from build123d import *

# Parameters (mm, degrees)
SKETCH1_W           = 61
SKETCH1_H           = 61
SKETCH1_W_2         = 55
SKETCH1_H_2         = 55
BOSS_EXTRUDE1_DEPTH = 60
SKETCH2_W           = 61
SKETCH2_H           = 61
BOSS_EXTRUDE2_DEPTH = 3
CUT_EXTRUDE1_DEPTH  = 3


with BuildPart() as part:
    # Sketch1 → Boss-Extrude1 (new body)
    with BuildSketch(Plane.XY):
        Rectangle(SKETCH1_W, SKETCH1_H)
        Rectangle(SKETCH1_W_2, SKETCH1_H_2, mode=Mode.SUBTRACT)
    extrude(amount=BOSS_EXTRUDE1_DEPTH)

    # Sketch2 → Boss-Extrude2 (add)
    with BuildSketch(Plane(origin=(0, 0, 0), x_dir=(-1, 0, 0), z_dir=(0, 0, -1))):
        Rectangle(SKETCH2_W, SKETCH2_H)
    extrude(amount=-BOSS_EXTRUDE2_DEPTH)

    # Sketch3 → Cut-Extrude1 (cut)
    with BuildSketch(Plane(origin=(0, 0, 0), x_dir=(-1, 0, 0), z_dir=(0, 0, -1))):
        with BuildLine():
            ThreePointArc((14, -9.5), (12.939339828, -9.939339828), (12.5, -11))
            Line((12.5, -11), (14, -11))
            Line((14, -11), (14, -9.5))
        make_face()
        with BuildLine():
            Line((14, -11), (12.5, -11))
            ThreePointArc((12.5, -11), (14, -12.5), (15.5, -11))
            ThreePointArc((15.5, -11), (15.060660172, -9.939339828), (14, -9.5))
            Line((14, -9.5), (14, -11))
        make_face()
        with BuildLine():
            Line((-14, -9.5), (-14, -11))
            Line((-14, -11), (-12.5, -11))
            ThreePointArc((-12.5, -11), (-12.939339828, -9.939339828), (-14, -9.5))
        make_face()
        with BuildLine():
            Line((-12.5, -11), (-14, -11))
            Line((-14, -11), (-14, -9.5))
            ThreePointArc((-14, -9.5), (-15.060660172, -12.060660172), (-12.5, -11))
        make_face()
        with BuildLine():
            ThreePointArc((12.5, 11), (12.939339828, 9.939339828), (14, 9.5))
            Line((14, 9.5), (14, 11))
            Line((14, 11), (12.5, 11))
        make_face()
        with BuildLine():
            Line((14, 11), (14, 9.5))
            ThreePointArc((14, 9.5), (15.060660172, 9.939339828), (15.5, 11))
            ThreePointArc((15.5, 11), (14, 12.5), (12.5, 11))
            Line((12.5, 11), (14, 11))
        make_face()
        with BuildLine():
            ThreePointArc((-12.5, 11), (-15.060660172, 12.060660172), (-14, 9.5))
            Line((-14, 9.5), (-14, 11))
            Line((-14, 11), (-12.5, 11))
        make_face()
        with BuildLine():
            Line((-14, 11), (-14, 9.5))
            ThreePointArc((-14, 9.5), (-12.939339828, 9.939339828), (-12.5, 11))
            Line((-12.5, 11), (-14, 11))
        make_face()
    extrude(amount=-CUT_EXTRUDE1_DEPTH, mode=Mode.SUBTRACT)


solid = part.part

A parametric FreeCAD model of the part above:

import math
import FreeCAD as App
import Part
import Sketcher
from FreeCAD import Vector
Q = App.Units.Quantity

doc = App.newDocument("Part")
params = doc.addObject("Spreadsheet::Sheet", "Params")
for row, (alias, value) in enumerate([
    ("sketch1_width", "61 mm"),
    ("sketch1_width2", "55 mm"),
    ("pad1_length", "60 mm"),
    ("sketch2_width", "61 mm"),
    ("pad2_length", "3 mm"),
    ("sketch3_radius", "1.5 mm"),
    ("pocket1_length", "3 mm"),
], start=1):
    params.set(f"A{row}", alias)
    params.set(f"B{row}", "=" + value)
    params.setAlias(f"B{row}", alias)

body = doc.addObject("PartDesign::Body", "Body")

# Sketch on XY plane
sketch1 = body.newObject("Sketcher::SketchObject", "Sketch")
sketch1.AttachmentSupport = (doc.getObject("XY_Plane"), [""])
sketch1.MapMode = "FlatFace"
sketch1.addGeometry([
    Part.LineSegment(Vector(-30, 30, 0), Vector(-30, -30, 0)),  # 0
    Part.LineSegment(Vector(-30, -30, 0), Vector(30, -30, 0)),  # 1
    Part.LineSegment(Vector(30, -30, 0), Vector(30, 30, 0)),  # 2
    Part.LineSegment(Vector(30, 30, 0), Vector(-30, 30, 0)),  # 3
    Part.LineSegment(Vector(28, -28, 0), Vector(-28, -28, 0)),  # 4
    Part.LineSegment(Vector(-28, -28, 0), Vector(-28, 28, 0)),  # 5
    Part.LineSegment(Vector(-28, 28, 0), Vector(28, 28, 0)),  # 6
    Part.LineSegment(Vector(28, 28, 0), Vector(28, -28, 0)),  # 7
], False)
sketch1.addConstraint([
    Sketcher.Constraint("Coincident", 0, 2, 1, 1),
    Sketcher.Constraint("Coincident", 1, 2, 2, 1),
    Sketcher.Constraint("Coincident", 2, 2, 3, 1),
    Sketcher.Constraint("Coincident", 3, 2, 0, 1),
    Sketcher.Constraint("Coincident", 4, 2, 5, 1),
    Sketcher.Constraint("Coincident", 5, 2, 6, 1),
    Sketcher.Constraint("Coincident", 6, 2, 7, 1),
    Sketcher.Constraint("Coincident", 7, 2, 4, 1),
    Sketcher.Constraint("Vertical", 0),
    Sketcher.Constraint("Horizontal", 1),
    Sketcher.Constraint("Vertical", 2),
    Sketcher.Constraint("Horizontal", 3),
    Sketcher.Constraint("Horizontal", 4),
    Sketcher.Constraint("Vertical", 5),
    Sketcher.Constraint("Horizontal", 6),
    Sketcher.Constraint("Vertical", 7),
    Sketcher.Constraint("Symmetric", 0, 2, 2, 2, -1, 1),
    Sketcher.Constraint("Symmetric", 4, 2, 6, 2, -1, 1),
    Sketcher.Constraint("Equal", 3, 0),
    Sketcher.Constraint("Equal", 6, 5),
    Sketcher.Constraint("DistanceX", 1, 1, 1, 2, Q("61 mm")),
    Sketcher.Constraint("DistanceX", 4, 2, 4, 1, Q("55 mm")),
])
sketch1.setExpression("Constraints[20]", "Params.sketch1_width")
sketch1.setExpression("Constraints[21]", "Params.sketch1_width2")
pad1 = body.newObject("PartDesign::Pad", "Pad")
pad1.Profile = sketch1
pad1.setExpression("Length", "Params.pad1_length")

# Sketch on XY plane
sketch2 = body.newObject("Sketcher::SketchObject", "Sketch001")
sketch2.AttachmentSupport = (doc.getObject("XY_Plane"), [""])
sketch2.MapMode = "FlatFace"
sketch2.addGeometry([
    Part.LineSegment(Vector(30, 30, 0), Vector(30, -30, 0)),
    Part.LineSegment(Vector(30, -30, 0), Vector(-30, -30, 0)),
    Part.LineSegment(Vector(-30, -30, 0), Vector(-30, 30, 0)),
    Part.LineSegment(Vector(-30, 30, 0), Vector(30, 30, 0)),
], False)
sketch2.addConstraint([
    Sketcher.Constraint("Coincident", 0, 2, 1, 1),
    Sketcher.Constraint("Coincident", 1, 2, 2, 1),
    Sketcher.Constraint("Coincident", 2, 2, 3, 1),
    Sketcher.Constraint("Coincident", 3, 2, 0, 1),
    Sketcher.Constraint("Vertical", 0),
    Sketcher.Constraint("Horizontal", 1),
    Sketcher.Constraint("Vertical", 2),
    Sketcher.Constraint("Horizontal", 3),
    Sketcher.Constraint("Symmetric", 0, 2, 2, 2, -1, 1),
    Sketcher.Constraint("Equal", 3, 0),
    Sketcher.Constraint("DistanceX", 1, 2, 1, 1, Q("61 mm")),
])
sketch2.setExpression("Constraints[10]", "Params.sketch2_width")
pad2 = body.newObject("PartDesign::Pad", "Pad001")
pad2.Profile = sketch2
pad2.setExpression("Length", "Params.pad2_length")

# Sketch on XY plane
sketch3 = body.newObject("Sketcher::SketchObject", "Sketch002")
sketch3.AttachmentSupport = (doc.getObject("XY_Plane"), [""])
sketch3.MapMode = "FlatFace"
sketch3.addGeometry([
    Part.ArcOfCircle(Part.Circle(Vector(-14, -11, 0), Vector(0, 0, 1), 1.5), math.radians(0), math.radians(90)),  # 0
    Part.ArcOfCircle(Part.Circle(Vector(-14, -11, 0), Vector(0, 0, 1), 1.5), math.radians(180), math.radians(360)),  # 1
    Part.ArcOfCircle(Part.Circle(Vector(-14, -11, 0), Vector(0, 0, 1), 1.5), math.radians(90), math.radians(180)),  # 2
    Part.ArcOfCircle(Part.Circle(Vector(14, -11, 0), Vector(0, 0, 1), 1.5), math.radians(90), math.radians(180)),  # 3
    Part.ArcOfCircle(Part.Circle(Vector(14, -11, 0), Vector(0, 0, 1), 1.5), math.radians(180), math.radians(450)),  # 4
    Part.ArcOfCircle(Part.Circle(Vector(-14, 11, 0), Vector(0, 0, 1), 1.5), math.radians(-90), math.radians(0)),  # 5
    Part.ArcOfCircle(Part.Circle(Vector(-14, 11, 0), Vector(0, 0, 1), 1.5), math.radians(180), math.radians(270)),  # 6
    Part.ArcOfCircle(Part.Circle(Vector(-14, 11, 0), Vector(0, 0, 1), 1.5), math.radians(0), math.radians(180)),  # 7
    Part.ArcOfCircle(Part.Circle(Vector(14, 11, 0), Vector(0, 0, 1), 1.5), math.radians(-90), math.radians(180)),  # 8
    Part.ArcOfCircle(Part.Circle(Vector(14, 11, 0), Vector(0, 0, 1), 1.5), math.radians(180), math.radians(270)),  # 9
], False)
sketch3.addConstraint([
    Sketcher.Constraint("Tangent", 0, 1, 1, 2),
    Sketcher.Constraint("Tangent", 1, 1, 2, 2),
    Sketcher.Constraint("Tangent", 2, 1, 0, 2),
    Sketcher.Constraint("Tangent", 3, 1, 4, 2),
    Sketcher.Constraint("Coincident", 4, 1, 3, 2),
    Sketcher.Constraint("Tangent", 5, 1, 6, 2),
    Sketcher.Constraint("Tangent", 6, 1, 7, 2),
    Sketcher.Constraint("Tangent", 7, 1, 5, 2),
    Sketcher.Constraint("Tangent", 8, 1, 9, 2),
    Sketcher.Constraint("Coincident", 9, 1, 8, 2),
    Sketcher.Constraint("Equal", 2, 3),
    Sketcher.Constraint("Equal", 4, 5),
    Sketcher.Constraint("Equal", 7, 8),
    Sketcher.Constraint("Symmetric", 3, 3, 5, 3, -1, 1),
    Sketcher.Constraint("Symmetric", 0, 3, 8, 3, -1, 1),
    Sketcher.Constraint("Symmetric", 0, 3, 3, 3, -2),
    Sketcher.Constraint("Horizontal", 4, 3, 0, 1),
    Sketcher.Constraint("Horizontal", 0, 1, 1, 1),
    Sketcher.Constraint("Horizontal", 1, 1, 4, 1),
    Sketcher.Constraint("Horizontal", 9, 3, 6, 1),
    Sketcher.Constraint("Horizontal", 6, 1, 7, 1),
    Sketcher.Constraint("Horizontal", 7, 1, 9, 1),
    Sketcher.Constraint("Vertical", 7, 3, 2, 1),
    Sketcher.Constraint("Vertical", 9, 3, 3, 1),
    Sketcher.Constraint("Vertical", 2, 1, 5, 1),
    Sketcher.Constraint("Vertical", 3, 1, 8, 1),
    Sketcher.Constraint("Radius", 0, Q("1.5 mm")),
    Sketcher.Constraint("DistanceX", 0, 3, -1, 1, Q("14 mm")),
    Sketcher.Constraint("DistanceY", 0, 3, -1, 1, Q("11 mm")),
])
sketch3.setExpression("Constraints[26]", "Params.sketch3_radius")
pocket1 = body.newObject("PartDesign::Pocket", "Pocket")
pocket1.Profile = sketch3
pocket1.setExpression("Length", "Params.pocket1_length")
pocket1.Reversed = True

doc.recompute()
